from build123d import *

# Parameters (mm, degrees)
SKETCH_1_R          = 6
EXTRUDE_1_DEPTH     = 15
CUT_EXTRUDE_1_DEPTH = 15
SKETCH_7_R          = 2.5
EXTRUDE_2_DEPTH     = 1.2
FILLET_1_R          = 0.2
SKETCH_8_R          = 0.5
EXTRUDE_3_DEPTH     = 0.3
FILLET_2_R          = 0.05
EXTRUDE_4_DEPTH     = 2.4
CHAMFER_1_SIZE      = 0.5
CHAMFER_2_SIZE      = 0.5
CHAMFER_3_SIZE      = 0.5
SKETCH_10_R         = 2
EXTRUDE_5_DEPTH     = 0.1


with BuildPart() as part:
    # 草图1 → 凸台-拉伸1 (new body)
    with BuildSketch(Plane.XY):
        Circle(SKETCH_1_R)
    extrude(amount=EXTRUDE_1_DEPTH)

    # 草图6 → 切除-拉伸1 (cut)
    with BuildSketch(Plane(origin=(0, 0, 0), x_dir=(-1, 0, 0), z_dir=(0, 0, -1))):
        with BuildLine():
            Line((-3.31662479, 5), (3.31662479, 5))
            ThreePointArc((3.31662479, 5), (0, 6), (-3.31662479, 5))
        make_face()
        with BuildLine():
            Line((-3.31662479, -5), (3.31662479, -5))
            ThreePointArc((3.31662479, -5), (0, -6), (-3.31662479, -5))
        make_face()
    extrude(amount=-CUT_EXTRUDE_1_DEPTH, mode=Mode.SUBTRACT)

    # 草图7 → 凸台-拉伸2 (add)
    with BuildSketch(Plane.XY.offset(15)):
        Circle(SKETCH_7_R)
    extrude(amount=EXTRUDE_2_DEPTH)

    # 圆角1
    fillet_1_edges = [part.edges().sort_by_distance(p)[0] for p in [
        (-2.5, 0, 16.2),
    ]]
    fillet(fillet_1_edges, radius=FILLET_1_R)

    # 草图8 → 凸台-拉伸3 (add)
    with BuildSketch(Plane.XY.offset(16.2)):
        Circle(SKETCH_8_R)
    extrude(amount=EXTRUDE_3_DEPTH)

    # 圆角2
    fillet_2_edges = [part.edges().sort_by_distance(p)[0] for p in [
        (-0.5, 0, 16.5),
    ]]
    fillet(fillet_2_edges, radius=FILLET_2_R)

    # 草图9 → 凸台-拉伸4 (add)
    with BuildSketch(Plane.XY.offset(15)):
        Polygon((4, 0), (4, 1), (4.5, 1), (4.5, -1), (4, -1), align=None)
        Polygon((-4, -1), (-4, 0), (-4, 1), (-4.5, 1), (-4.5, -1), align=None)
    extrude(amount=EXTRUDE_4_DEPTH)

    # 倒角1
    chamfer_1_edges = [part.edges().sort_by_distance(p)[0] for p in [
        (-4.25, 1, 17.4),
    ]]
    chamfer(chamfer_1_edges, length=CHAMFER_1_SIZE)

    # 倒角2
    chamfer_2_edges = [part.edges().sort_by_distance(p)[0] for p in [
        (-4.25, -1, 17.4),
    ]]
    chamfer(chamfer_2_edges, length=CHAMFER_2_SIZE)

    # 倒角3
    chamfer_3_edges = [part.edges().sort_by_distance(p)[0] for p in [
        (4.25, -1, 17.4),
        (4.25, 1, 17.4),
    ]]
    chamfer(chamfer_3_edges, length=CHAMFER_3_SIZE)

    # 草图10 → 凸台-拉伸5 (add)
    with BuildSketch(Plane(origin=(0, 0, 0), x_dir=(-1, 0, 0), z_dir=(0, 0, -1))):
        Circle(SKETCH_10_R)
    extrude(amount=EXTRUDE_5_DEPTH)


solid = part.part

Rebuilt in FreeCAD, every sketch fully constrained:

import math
import FreeCAD as App
import Part
import Sketcher


def edges_at(feature, points):
    """Names of the edges that pass closest to the given points."""
    edges = feature.Shape.Edges
    near = lambda p: min(range(len(edges)), key=lambda i: edges[i].distToShape(Part.Vertex(*p))[0])
    return sorted({f"Edge{near(p) + 1}" for p in points})


def add_polygon(sketch, points):
    """Adds a closed chain of lines whose ends are joined by coincident constraints."""
    first, n = sketch.GeometryCount, len(points)
    for a, b in zip(points, points[1:] + points[:1]):
        sketch.addGeometry(Part.LineSegment(App.Vector(*a, 0), App.Vector(*b, 0)), False)
    for i in range(n):
        sketch.addConstraint(Sketcher.Constraint("Coincident", first + i, 2, first + (i + 1) % n, 1))

doc = App.newDocument("Part")
params = doc.addObject("Spreadsheet::Sheet", "Params")
for row, (alias, value) in enumerate([
    ("sketch1_diameter", "12 mm"),
    ("pad1_length", "15 mm"),
    ("sketch2_radius", "6 mm"),
    ("pocket1_length", "15 mm"),
    ("sketch3_diameter", "5 mm"),
    ("pad2_length", "1.2 mm"),
    ("fillet_radius", "0.2 mm"),
    ("sketch4_diameter", "1 mm"),
    ("pad3_length", "0.3 mm"),
    ("fillet2_radius", "0.05 mm"),
    ("sketch5_height", "2 mm"),
    ("sketch5_width", "0.5 mm"),
    ("pad4_length", "2.4 mm"),
    ("chamfer_size", "0.5 mm"),
    ("chamfer2_size", "0.5 mm"),
    ("chamfer3_size", "0.5 mm"),
    ("sketch6_diameter", "4 mm"),
    ("pad5_length", "0.1 mm"),
], start=1):
    params.set(f"A{row}", alias)
    params.set(f"B{row}", "=" + value)
    params.setAlias(f"B{row}", alias)

body = doc.addObject("PartDesign::Body", "Body")

# Sketch on XY plane
sketch1 = doc.addObject("Sketcher::SketchObject", "Sketch")
body.addObject(sketch1)
sketch1.AttachmentSupport = (doc.XY_Plane, [""])
sketch1.MapMode = "FlatFace"
sketch1.addGeometry(Part.Circle(App.Vector(0, 0, 0), App.Vector(0, 0, 1), 6), False)
sketch1.addConstraint([
    Sketcher.Constraint("Coincident", 0, 3, -1, 1),
    Sketcher.Constraint("Diameter", 0, 12.0),
])
sketch1.setExpression("Constraints[1]", "Params.sketch1_diameter")
pad1 = doc.addObject("PartDesign::Pad", "Pad")
body.addObject(pad1)
pad1.Profile = sketch1
pad1.setExpression("Length", "Params.pad1_length")

# Sketch on XY plane
sketch2 = doc.addObject("Sketcher::SketchObject", "Sketch001")
body.addObject(sketch2)
sketch2.AttachmentSupport = (doc.XY_Plane, [""])
sketch2.MapMode = "FlatFace"
sketch2.addGeometry([
    Part.LineSegment(App.Vector(3.316625, 5, 0), App.Vector(-3.316625, 5, 0)),
    Part.ArcOfCircle(Part.Circle(App.Vector(0, 0, 0), App.Vector(0, 0, 1), 6), math.radians(56.44269), math.radians(123.55731)),
    Part.LineSegment(App.Vector(-3.316625, -5, 0), App.Vector(3.316625, -5, 0)),
    Part.ArcOfCircle(Part.Circle(App.Vector(0, 0, 0), App.Vector(0, 0, 1), 6), math.radians(-123.55731), math.radians(-56.44269)),
], False)
sketch2.addConstraint([
    Sketcher.Constraint("Coincident", 0, 1, 1, 1),
    Sketcher.Constraint("Coincident", 1, 2, 0, 2),
    Sketcher.Constraint("Coincident", 2, 1, 3, 1),
    Sketcher.Constraint("Coincident", 3, 2, 2, 2),
    Sketcher.Constraint("Horizontal", 0),
    Sketcher.Constraint("Horizontal", 2),
    Sketcher.Constraint("Coincident", 1, 3, -1, 1),
    Sketcher.Constraint("Coincident", 3, 3, -1, 1),
    Sketcher.Constraint("Equal", 1, 3),
    Sketcher.Constraint("Vertical", 1, 2, 2, 1),
    Sketcher.Constraint("Radius", 1, 6.0),
    Sketcher.Constraint("DistanceY", -1, 1, 0, 1, 5.0),
])
sketch2.setExpression("Constraints[10]", "Params.sketch2_radius")
pocket1 = doc.addObject("PartDesign::Pocket", "Pocket")
body.addObject(pocket1)
pocket1.Profile = sketch2
pocket1.setExpression("Length", "Params.pocket1_length")
pocket1.Reversed = True

# Sketch on XY plane
sketch3 = doc.addObject("Sketcher::SketchObject", "Sketch002")
body.addObject(sketch3)
sketch3.AttachmentSupport = (doc.XY_Plane, [""])
sketch3.MapMode = "FlatFace"
sketch3.AttachmentOffset = App.Placement(App.Vector(0, 0, 15), App.Rotation())
sketch3.addGeometry(Part.Circle(App.Vector(0, 0, 0), App.Vector(0, 0, 1), 2.5), False)
sketch3.addConstraint([
    Sketcher.Constraint("Coincident", 0, 3, -1, 1),
    Sketcher.Constraint("Diameter", 0, 5.0),
])
sketch3.setExpression("Constraints[1]", "Params.sketch3_diameter")
pad2 = doc.addObject("PartDesign::Pad", "Pad001")
body.addObject(pad2)
pad2.Profile = sketch3
pad2.setExpression("Length", "Params.pad2_length")
doc.recompute()

fillet = doc.addObject("PartDesign::Fillet", "Fillet")
body.addObject(fillet)
fillet.Base = (pad2, edges_at(pad2, [(-2.5, 0, 16.2)]))
fillet.setExpression("Radius", "Params.fillet_radius")

# Sketch on XY plane
sketch4 = doc.addObject("Sketcher::SketchObject", "Sketch003")
body.addObject(sketch4)
sketch4.AttachmentSupport = (doc.XY_Plane, [""])
sketch4.MapMode = "FlatFace"
sketch4.AttachmentOffset = App.Placement(App.Vector(0, 0, 16.2), App.Rotation())
sketch4.addGeometry(Part.Circle(App.Vector(0, 0, 0), App.Vector(0, 0, 1), 0.5), False)
sketch4.addConstraint([
    Sketcher.Constraint("Coincident", 0, 3, -1, 1),
    Sketcher.Constraint("Diameter", 0, 1.0),
])
sketch4.setExpression("Constraints[1]", "Params.sketch4_diameter")
pad3 = doc.addObject("PartDesign::Pad", "Pad002")
body.addObject(pad3)
pad3.Profile = sketch4
pad3.setExpression("Length", "Params.pad3_length")
doc.recompute()

fillet2 = doc.addObject("PartDesign::Fillet", "Fillet001")
body.addObject(fillet2)
fillet2.Base = (pad3, edges_at(pad3, [(-0.5, 0, 16.5)]))
fillet2.setExpression("Radius", "Params.fillet2_radius")

# Sketch on XY plane
sketch5 = doc.addObject("Sketcher::SketchObject", "Sketch004")
body.addObject(sketch5)
sketch5.AttachmentSupport = (doc.XY_Plane, [""])
sketch5.MapMode = "FlatFace"
sketch5.AttachmentOffset = App.Placement(App.Vector(0, 0, 15), App.Rotation())
add_polygon(sketch5, [(4, 1), (4, -1), (4.5, -1), (4.5, 1)])  # lines 0-3
add_polygon(sketch5, [(-4, -1), (-4, 1), (-4.5, 1), (-4.5, -1)])  # lines 4-7
sketch5.addConstraint([
    Sketcher.Constraint("Vertical", 0),
    Sketcher.Constraint("Horizontal", 1),
    Sketcher.Constraint("Vertical", 2),
    Sketcher.Constraint("Horizontal", 3),
    Sketcher.Constraint("Vertical", 4),
    Sketcher.Constraint("Horizontal", 5),
    Sketcher.Constraint("Vertical", 6),
    Sketcher.Constraint("Horizontal", 7),
    Sketcher.Constraint("Symmetric", 0, 2, 4, 2, -1, 1),
    Sketcher.Constraint("Symmetric", 2, 2, 6, 2, -1, 1),
    Sketcher.Constraint("Horizontal", 3, 2, 4, 2),
    Sketcher.Constraint("DistanceY", 0, 2, 0, 1, 2.0),
    Sketcher.Constraint("DistanceX", 1, 1, 1, 2, 0.5),
    Sketcher.Constraint("DistanceX", -1, 1, 0, 2, 4.0),
])
sketch5.setExpression("Constraints[19]", "Params.sketch5_height")
sketch5.setExpression("Constraints[20]", "Params.sketch5_width")
pad4 = doc.addObject("PartDesign::Pad", "Pad003")
body.addObject(pad4)
pad4.Profile = sketch5
pad4.setExpression("Length", "Params.pad4_length")
doc.recompute()

chamfer = doc.addObject("PartDesign::Chamfer", "Chamfer")
body.addObject(chamfer)
chamfer.Base = (pad4, edges_at(pad4, [(-4.25, 1, 17.4)]))
chamfer.setExpression("Size", "Params.chamfer_size")
doc.recompute()

chamfer2 = doc.addObject("PartDesign::Chamfer", "Chamfer001")
body.addObject(chamfer2)
chamfer2.Base = (chamfer, edges_at(chamfer, [(-4.25, -1, 17.4)]))
chamfer2.setExpression("Size", "Params.chamfer2_size")
doc.recompute()

chamfer3 = doc.addObject("PartDesign::Chamfer", "Chamfer002")
body.addObject(chamfer3)
chamfer3.Base = (chamfer2, edges_at(chamfer2, [(4.25, -1, 17.4), (4.25, 1, 17.4)]))
chamfer3.setExpression("Size", "Params.chamfer3_size")

# Sketch on XY plane
sketch6 = doc.addObject("Sketcher::SketchObject", "Sketch005")
body.addObject(sketch6)
sketch6.AttachmentSupport = (doc.XY_Plane, [""])
sketch6.MapMode = "FlatFace"
sketch6.addGeometry(Part.Circle(App.Vector(0, 0, 0), App.Vector(0, 0, 1), 2), False)
sketch6.addConstraint([
    Sketcher.Constraint("Coincident", 0, 3, -1, 1),
    Sketcher.Constraint("Diameter", 0, 4.0),
])
sketch6.setExpression("Constraints[1]", "Params.sketch6_diameter")
pad5 = doc.addObject("PartDesign::Pad", "Pad004")
body.addObject(pad5)
pad5.Profile = sketch6
pad5.setExpression("Length", "Params.pad5_length")
pad5.Reversed = True

doc.recompute()
